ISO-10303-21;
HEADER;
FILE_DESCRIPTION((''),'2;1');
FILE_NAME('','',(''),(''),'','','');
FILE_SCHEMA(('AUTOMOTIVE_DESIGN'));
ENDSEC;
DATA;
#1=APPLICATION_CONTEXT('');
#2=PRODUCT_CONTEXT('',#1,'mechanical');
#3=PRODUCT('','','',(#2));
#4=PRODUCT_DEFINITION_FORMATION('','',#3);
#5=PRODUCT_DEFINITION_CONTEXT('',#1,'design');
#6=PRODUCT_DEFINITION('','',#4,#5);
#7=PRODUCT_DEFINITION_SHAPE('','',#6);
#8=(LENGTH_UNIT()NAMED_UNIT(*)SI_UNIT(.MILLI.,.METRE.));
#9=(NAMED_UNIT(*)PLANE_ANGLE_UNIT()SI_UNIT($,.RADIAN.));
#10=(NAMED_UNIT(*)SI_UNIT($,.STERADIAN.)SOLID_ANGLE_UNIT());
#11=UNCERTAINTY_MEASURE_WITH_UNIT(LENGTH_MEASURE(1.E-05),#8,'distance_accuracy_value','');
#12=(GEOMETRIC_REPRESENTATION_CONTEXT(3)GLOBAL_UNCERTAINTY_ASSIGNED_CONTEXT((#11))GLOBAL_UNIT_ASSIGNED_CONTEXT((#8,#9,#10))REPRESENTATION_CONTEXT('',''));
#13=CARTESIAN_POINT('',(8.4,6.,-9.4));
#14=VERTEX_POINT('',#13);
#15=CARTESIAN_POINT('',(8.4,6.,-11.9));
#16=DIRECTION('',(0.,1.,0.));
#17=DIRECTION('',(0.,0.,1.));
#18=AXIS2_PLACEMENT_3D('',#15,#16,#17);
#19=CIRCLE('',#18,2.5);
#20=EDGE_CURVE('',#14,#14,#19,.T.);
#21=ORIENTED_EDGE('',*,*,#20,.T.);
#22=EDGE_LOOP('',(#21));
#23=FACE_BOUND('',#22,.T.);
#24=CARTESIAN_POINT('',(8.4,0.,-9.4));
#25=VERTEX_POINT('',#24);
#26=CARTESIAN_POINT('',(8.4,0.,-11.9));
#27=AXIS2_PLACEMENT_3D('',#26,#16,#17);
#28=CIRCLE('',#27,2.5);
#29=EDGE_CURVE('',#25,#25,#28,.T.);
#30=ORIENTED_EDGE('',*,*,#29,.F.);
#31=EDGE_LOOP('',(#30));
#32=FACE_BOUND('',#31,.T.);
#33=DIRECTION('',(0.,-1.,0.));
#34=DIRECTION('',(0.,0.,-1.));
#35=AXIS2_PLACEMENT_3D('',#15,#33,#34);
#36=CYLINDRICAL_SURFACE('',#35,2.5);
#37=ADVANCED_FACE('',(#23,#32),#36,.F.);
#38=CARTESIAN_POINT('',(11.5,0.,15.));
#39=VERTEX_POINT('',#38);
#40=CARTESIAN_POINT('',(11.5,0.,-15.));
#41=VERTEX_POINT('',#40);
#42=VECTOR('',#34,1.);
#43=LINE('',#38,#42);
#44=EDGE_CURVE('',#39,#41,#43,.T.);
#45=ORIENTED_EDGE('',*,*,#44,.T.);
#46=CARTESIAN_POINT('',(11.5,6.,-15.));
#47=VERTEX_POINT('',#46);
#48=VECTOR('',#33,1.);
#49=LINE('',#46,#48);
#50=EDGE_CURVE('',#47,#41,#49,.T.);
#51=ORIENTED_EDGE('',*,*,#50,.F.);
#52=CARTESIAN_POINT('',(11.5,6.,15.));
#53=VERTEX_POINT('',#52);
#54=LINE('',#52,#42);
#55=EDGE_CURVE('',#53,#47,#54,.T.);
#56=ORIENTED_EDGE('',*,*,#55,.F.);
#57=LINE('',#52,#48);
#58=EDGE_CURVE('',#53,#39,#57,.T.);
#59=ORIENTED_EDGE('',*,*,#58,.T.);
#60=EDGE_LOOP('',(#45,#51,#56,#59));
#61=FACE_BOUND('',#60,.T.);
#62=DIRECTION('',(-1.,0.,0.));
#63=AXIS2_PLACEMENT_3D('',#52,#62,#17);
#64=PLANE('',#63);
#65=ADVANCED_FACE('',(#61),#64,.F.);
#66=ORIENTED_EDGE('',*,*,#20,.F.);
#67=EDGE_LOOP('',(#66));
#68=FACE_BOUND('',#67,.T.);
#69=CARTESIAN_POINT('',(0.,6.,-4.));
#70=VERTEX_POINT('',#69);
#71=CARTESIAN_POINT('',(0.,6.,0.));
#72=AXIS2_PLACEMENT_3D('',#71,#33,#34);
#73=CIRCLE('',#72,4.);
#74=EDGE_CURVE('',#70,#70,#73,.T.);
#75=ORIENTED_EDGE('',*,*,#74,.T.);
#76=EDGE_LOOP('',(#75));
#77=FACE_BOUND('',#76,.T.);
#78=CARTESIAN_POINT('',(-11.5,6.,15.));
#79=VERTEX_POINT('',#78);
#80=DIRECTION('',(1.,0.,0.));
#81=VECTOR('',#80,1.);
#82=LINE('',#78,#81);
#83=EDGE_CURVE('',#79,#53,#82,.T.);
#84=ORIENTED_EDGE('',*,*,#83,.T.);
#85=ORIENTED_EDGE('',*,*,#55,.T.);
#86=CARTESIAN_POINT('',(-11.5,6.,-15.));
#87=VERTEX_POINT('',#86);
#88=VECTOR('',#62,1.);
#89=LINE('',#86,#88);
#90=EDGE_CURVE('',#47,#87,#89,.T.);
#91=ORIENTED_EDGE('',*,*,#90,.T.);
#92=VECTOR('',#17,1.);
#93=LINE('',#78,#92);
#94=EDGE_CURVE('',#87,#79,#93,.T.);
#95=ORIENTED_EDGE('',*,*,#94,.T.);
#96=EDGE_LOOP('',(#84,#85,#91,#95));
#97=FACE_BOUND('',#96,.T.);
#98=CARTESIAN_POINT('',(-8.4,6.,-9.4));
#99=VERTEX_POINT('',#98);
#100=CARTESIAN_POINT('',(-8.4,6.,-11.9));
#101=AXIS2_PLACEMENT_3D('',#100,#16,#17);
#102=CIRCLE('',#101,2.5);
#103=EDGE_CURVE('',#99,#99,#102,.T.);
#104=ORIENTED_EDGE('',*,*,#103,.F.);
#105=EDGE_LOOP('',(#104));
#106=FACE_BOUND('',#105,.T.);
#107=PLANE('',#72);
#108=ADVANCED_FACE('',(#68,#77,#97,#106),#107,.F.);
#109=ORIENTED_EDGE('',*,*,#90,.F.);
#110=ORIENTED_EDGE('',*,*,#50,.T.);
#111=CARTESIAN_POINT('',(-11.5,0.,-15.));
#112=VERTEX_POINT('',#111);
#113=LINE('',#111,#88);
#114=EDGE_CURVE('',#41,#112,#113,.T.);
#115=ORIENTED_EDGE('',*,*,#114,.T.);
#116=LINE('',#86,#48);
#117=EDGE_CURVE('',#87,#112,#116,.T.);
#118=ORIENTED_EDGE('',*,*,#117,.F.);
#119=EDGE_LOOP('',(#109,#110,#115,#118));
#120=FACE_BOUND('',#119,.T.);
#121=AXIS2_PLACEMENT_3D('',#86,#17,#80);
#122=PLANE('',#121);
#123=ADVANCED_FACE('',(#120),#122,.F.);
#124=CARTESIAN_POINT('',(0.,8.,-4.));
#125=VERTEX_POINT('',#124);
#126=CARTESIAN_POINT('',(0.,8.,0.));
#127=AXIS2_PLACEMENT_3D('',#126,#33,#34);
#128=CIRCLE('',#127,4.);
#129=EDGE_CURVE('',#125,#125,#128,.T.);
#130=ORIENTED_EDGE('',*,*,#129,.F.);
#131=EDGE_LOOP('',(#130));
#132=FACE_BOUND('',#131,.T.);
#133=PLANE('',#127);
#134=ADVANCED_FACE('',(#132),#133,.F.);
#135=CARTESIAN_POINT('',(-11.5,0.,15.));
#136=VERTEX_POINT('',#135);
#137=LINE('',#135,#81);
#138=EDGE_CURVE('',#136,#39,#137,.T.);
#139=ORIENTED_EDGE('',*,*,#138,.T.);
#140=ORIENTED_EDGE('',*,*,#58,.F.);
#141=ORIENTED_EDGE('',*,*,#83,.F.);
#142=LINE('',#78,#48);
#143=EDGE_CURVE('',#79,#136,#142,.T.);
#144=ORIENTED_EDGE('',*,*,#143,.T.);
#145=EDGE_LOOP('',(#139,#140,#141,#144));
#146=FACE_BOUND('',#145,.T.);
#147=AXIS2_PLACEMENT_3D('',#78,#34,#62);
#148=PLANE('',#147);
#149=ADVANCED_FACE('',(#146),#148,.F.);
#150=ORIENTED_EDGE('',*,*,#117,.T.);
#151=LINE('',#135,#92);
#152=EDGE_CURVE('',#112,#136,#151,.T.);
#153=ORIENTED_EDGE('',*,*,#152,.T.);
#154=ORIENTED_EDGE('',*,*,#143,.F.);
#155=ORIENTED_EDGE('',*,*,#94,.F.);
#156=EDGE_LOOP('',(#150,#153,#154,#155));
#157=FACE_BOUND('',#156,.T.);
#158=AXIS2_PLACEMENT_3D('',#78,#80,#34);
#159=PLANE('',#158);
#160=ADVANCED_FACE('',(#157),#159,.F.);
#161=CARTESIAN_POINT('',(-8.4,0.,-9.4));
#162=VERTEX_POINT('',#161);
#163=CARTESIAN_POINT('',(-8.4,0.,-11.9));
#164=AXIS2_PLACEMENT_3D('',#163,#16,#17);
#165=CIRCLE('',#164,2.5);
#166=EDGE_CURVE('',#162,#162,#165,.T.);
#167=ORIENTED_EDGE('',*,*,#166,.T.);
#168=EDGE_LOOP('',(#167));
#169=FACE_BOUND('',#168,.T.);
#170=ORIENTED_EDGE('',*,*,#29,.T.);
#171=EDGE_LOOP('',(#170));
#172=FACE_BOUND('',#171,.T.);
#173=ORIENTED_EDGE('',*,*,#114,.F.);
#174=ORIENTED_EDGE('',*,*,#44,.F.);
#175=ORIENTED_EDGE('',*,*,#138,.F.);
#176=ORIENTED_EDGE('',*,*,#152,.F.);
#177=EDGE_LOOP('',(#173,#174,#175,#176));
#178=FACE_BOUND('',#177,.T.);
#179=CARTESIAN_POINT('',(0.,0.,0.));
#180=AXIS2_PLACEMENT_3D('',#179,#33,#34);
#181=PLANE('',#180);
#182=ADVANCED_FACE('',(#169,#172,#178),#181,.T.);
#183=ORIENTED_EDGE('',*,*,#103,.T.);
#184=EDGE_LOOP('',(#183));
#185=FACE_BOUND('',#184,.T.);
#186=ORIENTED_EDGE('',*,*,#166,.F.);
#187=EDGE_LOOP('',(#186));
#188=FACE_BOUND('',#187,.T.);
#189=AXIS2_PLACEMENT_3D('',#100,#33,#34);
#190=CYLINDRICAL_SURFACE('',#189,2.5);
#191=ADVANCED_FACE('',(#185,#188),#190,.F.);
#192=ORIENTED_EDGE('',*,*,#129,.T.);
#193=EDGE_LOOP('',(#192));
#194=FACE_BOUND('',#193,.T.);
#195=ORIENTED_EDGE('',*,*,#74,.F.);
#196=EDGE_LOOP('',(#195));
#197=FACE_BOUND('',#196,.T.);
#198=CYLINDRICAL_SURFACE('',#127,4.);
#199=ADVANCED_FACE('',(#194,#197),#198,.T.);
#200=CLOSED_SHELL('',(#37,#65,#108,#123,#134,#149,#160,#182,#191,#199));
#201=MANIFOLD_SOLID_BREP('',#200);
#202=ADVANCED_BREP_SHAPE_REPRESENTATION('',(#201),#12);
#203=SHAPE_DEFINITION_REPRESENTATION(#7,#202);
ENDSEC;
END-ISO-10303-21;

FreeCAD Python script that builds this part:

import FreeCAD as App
import Part
import Sketcher

V = App.Vector

doc = App.newDocument("Part")
params = doc.addObject("Spreadsheet::Sheet", "Params")
for row, (alias, value) in enumerate([
    ("sketch1_diameter", "5 mm"),
    ("sketch1_width", "23 mm"),
    ("sketch1_height", "30 mm"),
    ("pad1_length", "6 mm"),
    ("sketch2_diameter", "8 mm"),
    ("pad2_length", "8 mm"),
], start=1):
    params.set(f"A{row}", alias)
    params.set(f"B{row}", "=" + value)
    params.setAlias(f"B{row}", alias)

body = doc.addObject("PartDesign::Body", "Body")

# Sketch on XZ plane
sketch1 = body.newObject("Sketcher::SketchObject", "Sketch")
sketch1.AttachmentSupport = (doc.getObject("XZ_Plane"), [""])
sketch1.MapMode = "FlatFace"
sketch1.addGeometry([
    Part.LineSegment(V(-11.5, -15, 0), V(-11.5, 15, 0)),  # 0
    Part.LineSegment(V(-11.5, 15, 0), V(11.5, 15, 0)),  # 1
    Part.LineSegment(V(11.5, 15, 0), V(11.5, -15, 0)),  # 2
    Part.LineSegment(V(11.5, -15, 0), V(-11.5, -15, 0)),  # 3
    Part.Circle(V(-8.4, -11.9, 0), V(0, 0, 1), 2.5),  # 4
    Part.Circle(V(8.4, -11.9, 0), V(0, 0, 1), 2.5),  # 5
], False)
sketch1.addConstraint([
    Sketcher.Constraint("Coincident", 0, 2, 1, 1),
    Sketcher.Constraint("Coincident", 1, 2, 2, 1),
    Sketcher.Constraint("Coincident", 2, 2, 3, 1),
    Sketcher.Constraint("Coincident", 3, 2, 0, 1),
    Sketcher.Constraint("Vertical", 0),
    Sketcher.Constraint("Horizontal", 1),
    Sketcher.Constraint("Vertical", 2),
    Sketcher.Constraint("Horizontal", 3),
    Sketcher.Constraint("Equal", 4, 5),
    Sketcher.Constraint("Symmetric", 0, 2, 2, 2, -1, 1),
    Sketcher.Constraint("Symmetric", 4, 3, 5, 3, -2),
    Sketcher.Constraint("Diameter", 4, 5.0),
    Sketcher.Constraint("DistanceX", 1, 1, 1, 2, 23.0),
    Sketcher.Constraint("DistanceY", 0, 1, 0, 2, 30.0),
    Sketcher.Constraint("DistanceX", 4, 3, -1, 1, 8.4),
    Sketcher.Constraint("DistanceY", 4, 3, -1, 1, 11.9),
])
sketch1.setExpression("Constraints[11]", "Params.sketch1_diameter")
sketch1.setExpression("Constraints[12]", "Params.sketch1_width")
sketch1.setExpression("Constraints[13]", "Params.sketch1_height")
pad1 = body.newObject("PartDesign::Pad", "Pad")
pad1.Profile = sketch1
pad1.setExpression("Length", "Params.pad1_length")
pad1.Reversed = True

# Sketch on XZ plane
sketch2 = body.newObject("Sketcher::SketchObject", "Sketch001")
sketch2.AttachmentSupport = (doc.getObject("XZ_Plane"), [""])
sketch2.MapMode = "FlatFace"
sketch2.addGeometry(Part.Circle(V(0, 0, 0), V(0, 0, 1), 4), False)
sketch2.addConstraint([
    Sketcher.Constraint("Coincident", 0, 3, -1, 1),
    Sketcher.Constraint("Diameter", 0, 8.0),
])
sketch2.setExpression("Constraints[1]", "Params.sketch2_diameter")
pad2 = body.newObject("PartDesign::Pad", "Pad001")
pad2.Profile = sketch2
pad2.setExpression("Length", "Params.pad2_length")
pad2.Reversed = True

doc.recompute()
